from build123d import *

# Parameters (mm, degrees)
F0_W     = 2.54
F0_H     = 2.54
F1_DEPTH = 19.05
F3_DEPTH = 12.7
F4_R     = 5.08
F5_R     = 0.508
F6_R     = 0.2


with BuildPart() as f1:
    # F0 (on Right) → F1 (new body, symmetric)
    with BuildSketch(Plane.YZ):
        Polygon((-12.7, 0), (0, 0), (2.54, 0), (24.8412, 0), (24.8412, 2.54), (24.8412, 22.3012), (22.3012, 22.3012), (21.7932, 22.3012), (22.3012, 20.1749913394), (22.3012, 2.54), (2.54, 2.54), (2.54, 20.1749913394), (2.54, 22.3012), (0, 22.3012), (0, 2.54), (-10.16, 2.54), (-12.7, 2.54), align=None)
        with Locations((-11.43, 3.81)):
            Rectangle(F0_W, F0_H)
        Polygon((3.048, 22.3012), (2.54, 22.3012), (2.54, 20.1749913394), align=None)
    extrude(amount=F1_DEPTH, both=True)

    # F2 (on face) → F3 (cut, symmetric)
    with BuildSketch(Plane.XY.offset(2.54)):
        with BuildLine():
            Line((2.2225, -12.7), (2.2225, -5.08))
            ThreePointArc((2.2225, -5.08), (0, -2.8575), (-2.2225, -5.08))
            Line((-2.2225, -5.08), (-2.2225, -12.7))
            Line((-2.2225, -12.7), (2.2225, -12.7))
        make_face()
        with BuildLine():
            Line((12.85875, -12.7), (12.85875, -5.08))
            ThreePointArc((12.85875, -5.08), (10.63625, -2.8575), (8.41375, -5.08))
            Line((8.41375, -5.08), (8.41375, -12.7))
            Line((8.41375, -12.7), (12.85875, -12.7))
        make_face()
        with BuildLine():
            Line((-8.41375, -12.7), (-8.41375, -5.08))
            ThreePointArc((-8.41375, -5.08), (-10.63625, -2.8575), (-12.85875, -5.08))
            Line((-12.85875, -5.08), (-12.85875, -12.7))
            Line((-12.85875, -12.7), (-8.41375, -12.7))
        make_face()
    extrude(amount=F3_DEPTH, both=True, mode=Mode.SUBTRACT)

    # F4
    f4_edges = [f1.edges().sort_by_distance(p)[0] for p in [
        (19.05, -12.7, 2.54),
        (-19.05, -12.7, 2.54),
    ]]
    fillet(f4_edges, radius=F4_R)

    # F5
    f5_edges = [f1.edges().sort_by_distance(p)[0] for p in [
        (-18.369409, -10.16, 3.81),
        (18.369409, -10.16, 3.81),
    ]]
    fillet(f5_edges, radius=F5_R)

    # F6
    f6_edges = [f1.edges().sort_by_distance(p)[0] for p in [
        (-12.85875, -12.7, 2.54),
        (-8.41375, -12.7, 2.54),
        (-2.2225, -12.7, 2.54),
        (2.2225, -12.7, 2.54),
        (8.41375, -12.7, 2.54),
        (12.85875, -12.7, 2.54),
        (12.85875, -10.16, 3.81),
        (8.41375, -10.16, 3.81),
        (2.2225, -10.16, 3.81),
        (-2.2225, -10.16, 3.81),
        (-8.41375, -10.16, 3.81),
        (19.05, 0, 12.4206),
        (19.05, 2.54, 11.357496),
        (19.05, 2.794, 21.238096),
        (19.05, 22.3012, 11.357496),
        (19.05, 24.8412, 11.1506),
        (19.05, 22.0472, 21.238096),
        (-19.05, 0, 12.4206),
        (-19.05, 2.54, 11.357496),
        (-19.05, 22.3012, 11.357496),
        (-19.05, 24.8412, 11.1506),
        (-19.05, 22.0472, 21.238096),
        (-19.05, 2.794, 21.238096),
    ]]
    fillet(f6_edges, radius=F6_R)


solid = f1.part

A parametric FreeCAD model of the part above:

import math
import FreeCAD as App
import Part
import Sketcher
Q = App.Units.Quantity


def edges_at(feature, points):
    """Names of the edges that pass closest to the given points."""
    edges = feature.Shape.Edges
    near = lambda p: min(range(len(edges)), key=lambda i: edges[i].distToShape(Part.Vertex(*p))[0])
    return sorted({f"Edge{near(p) + 1}" for p in points})

doc = App.newDocument("Part")
body = doc.addObject("PartDesign::Body", "Body")

# Sketch on YZ plane
sketch1 = body.newObject("Sketcher::SketchObject", "Sketch")
sketch1.AttachmentSupport = (doc.getObject("YZ_Plane"), [""])
sketch1.MapMode = "FlatFace"
sketch1.addGeometry(Part.LineSegment(App.Vector(-12.7, 0, 0), App.Vector(24.8412, 0, 0)), False)
sketch1.addGeometry(Part.LineSegment(App.Vector(24.8412, 0, 0), App.Vector(24.8412, 22.3012, 0)), False)
sketch1.addGeometry(Part.LineSegment(App.Vector(24.8412, 22.3012, 0), App.Vector(21.7932, 22.3012, 0)), False)
sketch1.addGeometry(Part.LineSegment(App.Vector(21.7932, 22.3012, 0), App.Vector(22.3012, 20.174991, 0)), False)
sketch1.addGeometry(Part.LineSegment(App.Vector(22.3012, 20.174991, 0), App.Vector(22.3012, 2.54, 0)), False)
sketch1.addGeometry(Part.LineSegment(App.Vector(22.3012, 2.54, 0), App.Vector(2.54, 2.54, 0)), False)
sketch1.addGeometry(Part.LineSegment(App.Vector(2.54, 2.54, 0), App.Vector(2.54, 20.174991, 0)), False)
sketch1.addGeometry(Part.LineSegment(App.Vector(2.54, 20.174991, 0), App.Vector(3.048, 22.3012, 0)), False)
sketch1.addGeometry(Part.LineSegment(App.Vector(3.048, 22.3012, 0), App.Vector(0, 22.3012, 0)), False)
sketch1.addGeometry(Part.LineSegment(App.Vector(0, 22.3012, 0), App.Vector(0, 2.54, 0)), False)
sketch1.addGeometry(Part.LineSegment(App.Vector(0, 2.54, 0), App.Vector(-10.16, 2.54, 0)), False)
sketch1.addGeometry(Part.LineSegment(App.Vector(-10.16, 2.54, 0), App.Vector(-10.16, 5.08, 0)), False)
sketch1.addGeometry(Part.LineSegment(App.Vector(-10.16, 5.08, 0), App.Vector(-12.7, 5.08, 0)), False)
sketch1.addGeometry(Part.LineSegment(App.Vector(-12.7, 5.08, 0), App.Vector(-12.7, 0, 0)), False)
sketch1.addConstraint(Sketcher.Constraint("Coincident", 0, 2, 1, 1))
sketch1.addConstraint(Sketcher.Constraint("Coincident", 1, 2, 2, 1))
sketch1.addConstraint(Sketcher.Constraint("Coincident", 2, 2, 3, 1))
sketch1.addConstraint(Sketcher.Constraint("Coincident", 3, 2, 4, 1))
sketch1.addConstraint(Sketcher.Constraint("Coincident", 4, 2, 5, 1))
sketch1.addConstraint(Sketcher.Constraint("Coincident", 5, 2, 6, 1))
sketch1.addConstraint(Sketcher.Constraint("Coincident", 6, 2, 7, 1))
sketch1.addConstraint(Sketcher.Constraint("Coincident", 7, 2, 8, 1))
sketch1.addConstraint(Sketcher.Constraint("Coincident", 8, 2, 9, 1))
sketch1.addConstraint(Sketcher.Constraint("Coincident", 9, 2, 10, 1))
sketch1.addConstraint(Sketcher.Constraint("Coincident", 10, 2, 11, 1))
sketch1.addConstraint(Sketcher.Constraint("Coincident", 11, 2, 12, 1))
sketch1.addConstraint(Sketcher.Constraint("Coincident", 12, 2, 13, 1))
sketch1.addConstraint(Sketcher.Constraint("Coincident", 13, 2, 0, 1))
sketch1.addConstraint(Sketcher.Constraint("Horizontal", 0))
sketch1.addConstraint(Sketcher.Constraint("Vertical", 1))
sketch1.addConstraint(Sketcher.Constraint("Horizontal", 2))
sketch1.addConstraint(Sketcher.Constraint("Vertical", 4))
sketch1.addConstraint(Sketcher.Constraint("Horizontal", 5))
sketch1.addConstraint(Sketcher.Constraint("Vertical", 6))
sketch1.addConstraint(Sketcher.Constraint("Horizontal", 8))
sketch1.addConstraint(Sketcher.Constraint("Vertical", 9))
sketch1.addConstraint(Sketcher.Constraint("Horizontal", 10))
sketch1.addConstraint(Sketcher.Constraint("Vertical", 11))
sketch1.addConstraint(Sketcher.Constraint("Horizontal", 12))
sketch1.addConstraint(Sketcher.Constraint("Vertical", 13))
sketch1.addConstraint(Sketcher.Constraint("PointOnObject", 0, 2, -1))
sketch1.addConstraint(Sketcher.Constraint("PointOnObject", 8, 2, -2))
sketch1.addConstraint(Sketcher.Constraint("Horizontal", 3, 2, 6, 2))
sketch1.addConstraint(Sketcher.Constraint("Horizontal", 2, 2, 7, 2))
sketch1.addConstraint(Sketcher.Constraint("Horizontal", 5, 2, 9, 2))
sketch1.addConstraint(Sketcher.Constraint("Equal", 2, 8))
sketch1.addConstraint(Sketcher.Constraint("Equal", 5, 9))
sketch1.addConstraint(Sketcher.Constraint("Equal", 12, 11))
sketch1.addConstraint(Sketcher.Constraint("Equal", 3, 7))
sketch1.addConstraint(Sketcher.Constraint("DistanceX", 10, 2, 10, 1, Q("0.4 in")))
sketch1.addConstraint(Sketcher.Constraint("DistanceX", 12, 2, 12, 1, Q("0.1 in")))
sketch1.addConstraint(Sketcher.Constraint("DistanceY", 13, 2, 13, 1, Q("0.2 in")))
sketch1.addConstraint(Sketcher.Constraint("DistanceX", 2, 2, 2, 1, Q("0.12 in")))
sketch1.addConstraint(Sketcher.Constraint("DistanceX", -1, 1, 5, 2, Q("0.1 in")))
sketch1.addConstraint(Sketcher.Constraint("DistanceX", 0, 1, 0, 2, Q("1.478 in")))
sketch1.addConstraint(Sketcher.Constraint("DistanceY", 4, 2, 4, 1, 17.634991))
pad1 = body.newObject("PartDesign::Pad", "Pad")
pad1.Profile = sketch1
pad1.Length = Q("1.5 in")
pad1.Midplane = True

# Sketch on XY plane
sketch2 = body.newObject("Sketcher::SketchObject", "Sketch001")
sketch2.AttachmentSupport = (doc.getObject("XY_Plane"), [""])
sketch2.MapMode = "FlatFace"
sketch2.AttachmentOffset = App.Placement(App.Vector(0, 0, 0.1 * 25.4), App.Rotation())
sketch2.addGeometry(Part.LineSegment(App.Vector(2.2225, -12.7, 0), App.Vector(2.2225, -5.08, 0)), False)
sketch2.addGeometry(Part.ArcOfCircle(Part.Circle(App.Vector(0, -5.08, 0), App.Vector(0, 0, 1), 2.2225), math.radians(0), math.radians(180)), False)
sketch2.addGeometry(Part.LineSegment(App.Vector(-2.2225, -5.08, 0), App.Vector(-2.2225, -12.7, 0)), False)
sketch2.addGeometry(Part.LineSegment(App.Vector(-2.2225, -12.7, 0), App.Vector(2.2225, -12.7, 0)), False)
sketch2.addGeometry(Part.LineSegment(App.Vector(12.85875, -12.7, 0), App.Vector(12.85875, -5.08, 0)), False)
sketch2.addGeometry(Part.ArcOfCircle(Part.Circle(App.Vector(10.63625, -5.08, 0), App.Vector(0, 0, 1), 2.2225), math.radians(0), math.radians(180)), False)
sketch2.addGeometry(Part.LineSegment(App.Vector(8.41375, -5.08, 0), App.Vector(8.41375, -12.7, 0)), False)
sketch2.addGeometry(Part.LineSegment(App.Vector(8.41375, -12.7, 0), App.Vector(12.85875, -12.7, 0)), False)
sketch2.addGeometry(Part.LineSegment(App.Vector(-8.41375, -12.7, 0), App.Vector(-8.41375, -5.08, 0)), False)
sketch2.addGeometry(Part.ArcOfCircle(Part.Circle(App.Vector(-10.63625, -5.08, 0), App.Vector(0, 0, 1), 2.2225), math.radians(0), math.radians(180)), False)
sketch2.addGeometry(Part.LineSegment(App.Vector(-12.85875, -5.08, 0), App.Vector(-12.85875, -12.7, 0)), False)
sketch2.addGeometry(Part.LineSegment(App.Vector(-12.85875, -12.7, 0), App.Vector(-8.41375, -12.7, 0)), False)
sketch2.addConstraint(Sketcher.Constraint("Tangent", 0, 2, 1, 1))
sketch2.addConstraint(Sketcher.Constraint("Tangent", 1, 2, 2, 1))
sketch2.addConstraint(Sketcher.Constraint("Coincident", 2, 2, 3, 1))
sketch2.addConstraint(Sketcher.Constraint("Coincident", 3, 2, 0, 1))
sketch2.addConstraint(Sketcher.Constraint("Tangent", 4, 2, 5, 1))
sketch2.addConstraint(Sketcher.Constraint("Tangent", 5, 2, 6, 1))
sketch2.addConstraint(Sketcher.Constraint("Coincident", 6, 2, 7, 1))
sketch2.addConstraint(Sketcher.Constraint("Coincident", 7, 2, 4, 1))
sketch2.addConstraint(Sketcher.Constraint("Tangent", 8, 2, 9, 1))
sketch2.addConstraint(Sketcher.Constraint("Tangent", 9, 2, 10, 1))
sketch2.addConstraint(Sketcher.Constraint("Coincident", 10, 2, 11, 1))
sketch2.addConstraint(Sketcher.Constraint("Coincident", 11, 2, 8, 1))
sketch2.addConstraint(Sketcher.Constraint("Vertical", 0))
sketch2.addConstraint(Sketcher.Constraint("Vertical", 2))
sketch2.addConstraint(Sketcher.Constraint("Horizontal", 3))
sketch2.addConstraint(Sketcher.Constraint("Vertical", 4))
sketch2.addConstraint(Sketcher.Constraint("Vertical", 6))
sketch2.addConstraint(Sketcher.Constraint("Horizontal", 7))
sketch2.addConstraint(Sketcher.Constraint("Vertical", 8))
sketch2.addConstraint(Sketcher.Constraint("Vertical", 10))
sketch2.addConstraint(Sketcher.Constraint("Horizontal", 11))
sketch2.addConstraint(Sketcher.Constraint("Equal", 1, 5))
sketch2.addConstraint(Sketcher.Constraint("Equal", 5, 9))
sketch2.addConstraint(Sketcher.Constraint("Symmetric", 5, 3, 9, 3, -2))
sketch2.addConstraint(Sketcher.Constraint("PointOnObject", 1, 3, -2))
sketch2.addConstraint(Sketcher.Constraint("Horizontal", 1, 3, 5, 3))
sketch2.addConstraint(Sketcher.Constraint("Horizontal", 3, 2, 6, 2))
sketch2.addConstraint(Sketcher.Constraint("Horizontal", 7, 2, 10, 2))
sketch2.addConstraint(Sketcher.Constraint("DistanceY", 0, 1, 0, 2, Q("0.3 in")))
sketch2.addConstraint(Sketcher.Constraint("DistanceY", 1, 3, -1, 1, Q("0.2 in")))
sketch2.addConstraint(Sketcher.Constraint("Radius", 1, Q("0.0875 in")))
sketch2.addConstraint(Sketcher.Constraint("DistanceX", 1, 2, 4, 2, Q("0.59375 in")))
pocket1 = body.newObject("PartDesign::Pocket", "Pocket")
pocket1.Profile = sketch2
pocket1.Length = Q("1 in")
pocket1.Midplane = True
doc.recompute()

fillet = body.newObject("PartDesign::Fillet", "Fillet")
fillet.Base = (pocket1, edges_at(pocket1, [(19.05, -12.7, 2.54), (-19.05, -12.7, 2.54)]))
fillet.Radius = Q("0.2 in")
doc.recompute()

fillet2 = body.newObject("PartDesign::Fillet", "Fillet001")
fillet2.Base = (fillet, edges_at(fillet, [(-18.369, -10.16, 3.81), (18.369, -10.16, 3.81)]))
fillet2.Radius = Q("0.02 in")
doc.recompute()

fillet3 = body.newObject("PartDesign::Fillet", "Fillet002")
fillet3.Base = (fillet2, edges_at(fillet2, [
    (-12.859, -12.7, 2.54),
    (-8.414, -12.7, 2.54),
    (-2.223, -12.7, 2.54),
    (2.223, -12.7, 2.54),
    (8.414, -12.7, 2.54),
    (12.859, -12.7, 2.54),
    (12.859, -10.16, 3.81),
    (8.414, -10.16, 3.81),
    (2.223, -10.16, 3.81),
    (-2.223, -10.16, 3.81),
    (-8.414, -10.16, 3.81),
    (19.05, 0, 12.421),
    (19.05, 2.54, 11.357),
    (19.05, 2.794, 21.238),
    (19.05, 22.301, 11.357),
    (19.05, 24.841, 11.151),
    (19.05, 22.047, 21.238),
    (-19.05, 0, 12.421),
    (-19.05, 2.54, 11.357),
    (-19.05, 22.301, 11.357),
    (-19.05, 24.841, 11.151),
    (-19.05, 22.047, 21.238),
    (-19.05, 2.794, 21.238),
]))
fillet3.Radius = 0.2

doc.recompute()
